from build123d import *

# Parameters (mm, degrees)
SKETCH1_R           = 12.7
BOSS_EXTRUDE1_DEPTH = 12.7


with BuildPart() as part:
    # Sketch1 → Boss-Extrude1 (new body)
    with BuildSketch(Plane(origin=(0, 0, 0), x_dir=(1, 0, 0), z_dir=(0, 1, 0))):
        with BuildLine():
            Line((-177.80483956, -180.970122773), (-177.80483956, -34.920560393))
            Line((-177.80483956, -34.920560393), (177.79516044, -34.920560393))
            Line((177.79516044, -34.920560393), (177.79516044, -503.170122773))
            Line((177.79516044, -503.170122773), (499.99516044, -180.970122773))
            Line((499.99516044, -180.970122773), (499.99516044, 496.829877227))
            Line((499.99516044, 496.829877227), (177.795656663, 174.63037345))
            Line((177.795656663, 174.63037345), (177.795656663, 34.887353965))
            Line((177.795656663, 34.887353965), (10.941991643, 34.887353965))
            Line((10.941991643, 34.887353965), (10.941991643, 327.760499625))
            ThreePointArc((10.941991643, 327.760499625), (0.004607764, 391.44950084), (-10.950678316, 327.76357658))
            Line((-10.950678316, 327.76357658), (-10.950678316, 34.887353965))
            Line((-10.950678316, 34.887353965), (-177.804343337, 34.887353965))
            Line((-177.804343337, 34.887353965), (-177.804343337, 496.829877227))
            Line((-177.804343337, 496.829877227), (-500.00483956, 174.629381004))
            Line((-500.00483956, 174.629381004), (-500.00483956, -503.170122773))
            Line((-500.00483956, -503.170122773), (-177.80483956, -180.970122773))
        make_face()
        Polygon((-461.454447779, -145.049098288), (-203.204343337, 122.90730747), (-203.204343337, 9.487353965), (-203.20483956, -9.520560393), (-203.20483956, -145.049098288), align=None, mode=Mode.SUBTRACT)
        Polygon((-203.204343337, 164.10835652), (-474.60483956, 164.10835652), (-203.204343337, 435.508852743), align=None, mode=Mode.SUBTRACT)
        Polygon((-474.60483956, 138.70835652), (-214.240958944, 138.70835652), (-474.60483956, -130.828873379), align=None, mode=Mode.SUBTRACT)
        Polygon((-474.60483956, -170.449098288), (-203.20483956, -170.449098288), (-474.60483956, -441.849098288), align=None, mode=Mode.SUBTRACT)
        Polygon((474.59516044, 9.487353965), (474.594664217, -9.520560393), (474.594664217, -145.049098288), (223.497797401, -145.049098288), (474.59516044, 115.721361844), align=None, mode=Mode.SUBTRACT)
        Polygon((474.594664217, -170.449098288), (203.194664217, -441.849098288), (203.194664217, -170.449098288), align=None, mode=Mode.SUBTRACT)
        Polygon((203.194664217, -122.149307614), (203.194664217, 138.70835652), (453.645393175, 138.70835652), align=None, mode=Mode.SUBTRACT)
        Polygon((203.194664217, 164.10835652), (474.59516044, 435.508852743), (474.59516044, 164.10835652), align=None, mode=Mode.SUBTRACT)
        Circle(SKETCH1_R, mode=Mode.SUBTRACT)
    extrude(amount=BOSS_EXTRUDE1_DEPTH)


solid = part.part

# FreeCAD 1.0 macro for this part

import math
import FreeCAD as App
import Part
import Sketcher
Q = App.Units.Quantity

doc = App.newDocument("Part")
body = doc.addObject("PartDesign::Body", "Body")

# Sketch on XZ plane
sketch1 = body.newObject("Sketcher::SketchObject", "Sketch")
sketch1.AttachmentSupport = (doc.getObject("XZ_Plane"), [""])
sketch1.MapMode = "FlatFace"
sketch1.addGeometry([
    Part.LineSegment(App.Vector(-178, 181, 0), App.Vector(-178, 35, 0)),  # 0
    Part.LineSegment(App.Vector(-178, 35, 0), App.Vector(178, 35, 0)),  # 1
    Part.LineSegment(App.Vector(178, 35, 0), App.Vector(178, 503, 0)),  # 2
    Part.LineSegment(App.Vector(178, 503, 0), App.Vector(500, 181, 0)),  # 3
    Part.LineSegment(App.Vector(500, 181, 0), App.Vector(500, -497, 0)),  # 4
    Part.LineSegment(App.Vector(500, -497, 0), App.Vector(178, -175, 0)),  # 5
    Part.LineSegment(App.Vector(178, -175, 0), App.Vector(178, -35, 0)),  # 6
    Part.LineSegment(App.Vector(178, -35, 0), App.Vector(11, -35, 0)),  # 7
    Part.LineSegment(App.Vector(11, -35, 0), App.Vector(11, -328, 0)),  # 8
    Part.ArcOfCircle(Part.Circle(App.Vector(0, -359, 0), App.Vector(0, 0, 1), 33), math.radians(110), math.radians(431)),  # 9
    Part.LineSegment(App.Vector(-11, -328, 0), App.Vector(-11, -35, 0)),  # 10
    Part.LineSegment(App.Vector(-11, -35, 0), App.Vector(-178, -35, 0)),  # 11
    Part.LineSegment(App.Vector(-178, -35, 0), App.Vector(-178, -497, 0)),  # 12
    Part.LineSegment(App.Vector(-178, -497, 0), App.Vector(-500, -175, 0)),  # 13
    Part.LineSegment(App.Vector(-500, -175, 0), App.Vector(-500, 503, 0)),  # 14
    Part.LineSegment(App.Vector(-500, 503, 0), App.Vector(-178, 181, 0)),  # 15
    Part.LineSegment(App.Vector(-475, 442, 0), App.Vector(-475, 170, 0)),  # 16
    Part.LineSegment(App.Vector(-475, 170, 0), App.Vector(-203, 170, 0)),  # 17
    Part.LineSegment(App.Vector(-203, 170, 0), App.Vector(-475, 442, 0)),  # 18
    Part.LineSegment(App.Vector(-203, 145, 0), App.Vector(-461, 145, 0)),  # 19
    Part.LineSegment(App.Vector(-461, 145, 0), App.Vector(-203, -123, 0)),  # 20
    Part.LineSegment(App.Vector(-203, -123, 0), App.Vector(-203, -9, 0)),  # 21
    Part.LineSegment(App.Vector(-203, -9, 0), App.Vector(-203, 10, 0)),  # 22
    Part.LineSegment(App.Vector(-203, 10, 0), App.Vector(-203, 145, 0)),  # 23
    Part.LineSegment(App.Vector(203, 170, 0), App.Vector(475, 170, 0)),  # 24
    Part.LineSegment(App.Vector(475, 170, 0), App.Vector(203, 442, 0)),  # 25
    Part.LineSegment(App.Vector(203, 442, 0), App.Vector(203, 170, 0)),  # 26
    Part.LineSegment(App.Vector(475, -116, 0), App.Vector(475, -9, 0)),  # 27
    Part.LineSegment(App.Vector(475, -9, 0), App.Vector(475, 10, 0)),  # 28
    Part.LineSegment(App.Vector(475, 10, 0), App.Vector(475, 145, 0)),  # 29
    Part.LineSegment(App.Vector(475, 145, 0), App.Vector(223, 145, 0)),  # 30
    Part.LineSegment(App.Vector(223, 145, 0), App.Vector(475, -116, 0)),  # 31
    Part.LineSegment(App.Vector(-475, 131, 0), App.Vector(-475, -139, 0)),  # 32
    Part.LineSegment(App.Vector(-475, -139, 0), App.Vector(-214, -139, 0)),  # 33
    Part.LineSegment(App.Vector(-214, -139, 0), App.Vector(-475, 131, 0)),  # 34
    Part.LineSegment(App.Vector(-203, -436, 0), App.Vector(-203, -164, 0)),  # 35
    Part.LineSegment(App.Vector(-203, -164, 0), App.Vector(-475, -164, 0)),  # 36
    Part.LineSegment(App.Vector(-475, -164, 0), App.Vector(-203, -436, 0)),  # 37
    Part.Circle(App.Vector(0, 0, 0), App.Vector(0, 0, 1), 13),  # 38
    Part.LineSegment(App.Vector(454, -139, 0), App.Vector(203, 122, 0)),  # 39
    Part.LineSegment(App.Vector(203, 122, 0), App.Vector(203, -139, 0)),  # 40
    Part.LineSegment(App.Vector(203, -139, 0), App.Vector(454, -139, 0)),  # 41
    Part.LineSegment(App.Vector(475, -164, 0), App.Vector(203, -164, 0)),  # 42
    Part.LineSegment(App.Vector(203, -164, 0), App.Vector(475, -436, 0)),  # 43
    Part.LineSegment(App.Vector(475, -436, 0), App.Vector(475, -164, 0)),  # 44
], False)
sketch1.addConstraint([
    Sketcher.Constraint("Coincident", 0, 2, 1, 1),
    Sketcher.Constraint("Coincident", 1, 2, 2, 1),
    Sketcher.Constraint("Coincident", 2, 2, 3, 1),
    Sketcher.Constraint("Coincident", 3, 2, 4, 1),
    Sketcher.Constraint("Coincident", 4, 2, 5, 1),
    Sketcher.Constraint("Coincident", 5, 2, 6, 1),
    Sketcher.Constraint("Coincident", 6, 2, 7, 1),
    Sketcher.Constraint("Coincident", 7, 2, 8, 1),
    Sketcher.Constraint("Coincident", 8, 2, 9, 2),
    Sketcher.Constraint("Coincident", 9, 1, 10, 1),
    Sketcher.Constraint("Coincident", 10, 2, 11, 1),
    Sketcher.Constraint("Coincident", 11, 2, 12, 1),
    Sketcher.Constraint("Coincident", 12, 2, 13, 1),
    Sketcher.Constraint("Coincident", 13, 2, 14, 1),
    Sketcher.Constraint("Coincident", 14, 2, 15, 1),
    Sketcher.Constraint("Coincident", 15, 2, 0, 1),
    Sketcher.Constraint("Coincident", 16, 2, 17, 1),
    Sketcher.Constraint("Coincident", 17, 2, 18, 1),
    Sketcher.Constraint("Coincident", 18, 2, 16, 1),
    Sketcher.Constraint("Coincident", 19, 2, 20, 1),
    Sketcher.Constraint("Coincident", 20, 2, 21, 1),
    Sketcher.Constraint("Coincident", 21, 2, 22, 1),
    Sketcher.Constraint("Coincident", 22, 2, 23, 1),
    Sketcher.Constraint("Coincident", 23, 2, 19, 1),
    Sketcher.Constraint("Coincident", 24, 2, 25, 1),
    Sketcher.Constraint("Coincident", 25, 2, 26, 1),
    Sketcher.Constraint("Coincident", 26, 2, 24, 1),
    Sketcher.Constraint("Coincident", 27, 2, 28, 1),
    Sketcher.Constraint("Coincident", 28, 2, 29, 1),
    Sketcher.Constraint("Coincident", 29, 2, 30, 1),
    Sketcher.Constraint("Coincident", 30, 2, 31, 1),
    Sketcher.Constraint("Coincident", 31, 2, 27, 1),
    Sketcher.Constraint("Coincident", 32, 2, 33, 1),
    Sketcher.Constraint("Coincident", 33, 2, 34, 1),
    Sketcher.Constraint("Coincident", 34, 2, 32, 1),
    Sketcher.Constraint("Coincident", 35, 2, 36, 1),
    Sketcher.Constraint("Coincident", 36, 2, 37, 1),
    Sketcher.Constraint("Coincident", 37, 2, 35, 1),
    Sketcher.Constraint("Coincident", 39, 2, 40, 1),
    Sketcher.Constraint("Coincident", 40, 2, 41, 1),
    Sketcher.Constraint("Coincident", 41, 2, 39, 1),
    Sketcher.Constraint("Coincident", 42, 2, 43, 1),
    Sketcher.Constraint("Coincident", 43, 2, 44, 1),
    Sketcher.Constraint("Coincident", 44, 2, 42, 1),
    Sketcher.Constraint("Vertical", 0),
    Sketcher.Constraint("Horizontal", 1),
    Sketcher.Constraint("Vertical", 2),
    Sketcher.Constraint("Vertical", 4),
    Sketcher.Constraint("Vertical", 6),
    Sketcher.Constraint("Horizontal", 7),
    Sketcher.Constraint("Vertical", 8),
    Sketcher.Constraint("Vertical", 10),
    Sketcher.Constraint("Horizontal", 11),
    Sketcher.Constraint("Vertical", 12),
    Sketcher.Constraint("Vertical", 14),
    Sketcher.Constraint("Vertical", 16),
    Sketcher.Constraint("Horizontal", 17),
    Sketcher.Constraint("Horizontal", 19),
    Sketcher.Constraint("Vertical", 21),
    Sketcher.Constraint("Vertical", 23),
    Sketcher.Constraint("Horizontal", 24),
    Sketcher.Constraint("Vertical", 26),
    Sketcher.Constraint("Vertical", 27),
    Sketcher.Constraint("Vertical", 29),
    Sketcher.Constraint("Horizontal", 30),
    Sketcher.Constraint("Vertical", 32),
    Sketcher.Constraint("Horizontal", 33),
    Sketcher.Constraint("Vertical", 35),
    Sketcher.Constraint("Horizontal", 36),
    Sketcher.Constraint("Vertical", 40),
    Sketcher.Constraint("Horizontal", 41),
    Sketcher.Constraint("Horizontal", 42),
    Sketcher.Constraint("Vertical", 44),
    Sketcher.Constraint("Coincident", 38, 3, -1, 1),
    Sketcher.Constraint("PointOnObject", 9, 3, -2),
    Sketcher.Constraint("Parallel", 3, 5),
    Sketcher.Constraint("Parallel", 5, 13),
    Sketcher.Constraint("Parallel", 13, 15),
    Sketcher.Constraint("Parallel", 15, 18),
    Sketcher.Constraint("Parallel", 18, 25),
    Sketcher.Constraint("Parallel", 22, 28),
    Sketcher.Constraint("Parallel", 25, 37),
    Sketcher.Constraint("Parallel", 37, 43),
    Sketcher.Constraint("Horizontal", 7, 2, 10, 2),
    Sketcher.Constraint("Horizontal", 4, 2, 12, 2),
    Sketcher.Constraint("Horizontal", 2, 2, 14, 2),
    Sketcher.Constraint("Horizontal", 3, 2, 15, 2),
    Sketcher.Constraint("Horizontal", 17, 2, 24, 2),
    Sketcher.Constraint("Horizontal", 18, 2, 25, 2),
    Sketcher.Constraint("Horizontal", 21, 2, 27, 2),
    Sketcher.Constraint("Horizontal", 22, 2, 28, 2),
    Sketcher.Constraint("Horizontal", 23, 2, 29, 2),
    Sketcher.Constraint("Horizontal", 33, 2, 40, 2),
    Sketcher.Constraint("Horizontal", 36, 2, 42, 2),
    Sketcher.Constraint("Horizontal", 37, 2, 43, 2),
    Sketcher.Constraint("Vertical", 17, 2, 22, 2),
    Sketcher.Constraint("Vertical", 24, 2, 28, 2),
    Sketcher.Constraint("Vertical", 18, 2, 32, 2),
    Sketcher.Constraint("Vertical", 21, 2, 35, 2),
    Sketcher.Constraint("Vertical", 34, 2, 36, 2),
    Sketcher.Constraint("Vertical", 26, 2, 39, 2),
    Sketcher.Constraint("Vertical", 40, 2, 42, 2),
    Sketcher.Constraint("Equal", 7, 11),
    Sketcher.Constraint("Equal", 24, 16),
    Sketcher.Constraint("Diameter", 38, Q("1 in")),
    Sketcher.Constraint("DistanceX", 1, 1, 1, 2, Q("14 in")),
    Sketcher.Constraint("DistanceX", 12, 2, 5, 2, Q("14 in")),
    Sketcher.Constraint("DistanceX", 14, 2, 16, 2, Q("1 in")),
    Sketcher.Constraint("DistanceX", 17, 2, 15, 2, Q("1 in")),
    Sketcher.Constraint("DistanceY", 19, 2, 16, 2, Q("1 in")),
    Sketcher.Constraint("DistanceX", 20, 2, 11, 2, Q("1 in")),
    Sketcher.Constraint("DistanceY", 11, 2, 21, 2, Q("1 in")),
    Sketcher.Constraint("DistanceY", 22, 2, 0, 2, Q("1 in")),
    Sketcher.Constraint("DistanceX", 27, 2, 3, 2, Q("1 in")),
    Sketcher.Constraint("DistanceY", 35, 2, 33, 2, Q("1 in")),
    Sketcher.Constraint("DistanceX", 17, 1, 17, 2, Q("271.4 mm")),
    Sketcher.Constraint("DistanceY", 4, 2, 4, 1, Q("677.8 mm")),
    Sketcher.Constraint("Radius", 9, Q("32.784437 mm")),
    Sketcher.Constraint("DistanceX", 19, 2, 19, 1, Q("258.249608 mm")),
    Sketcher.Constraint("DistanceX", 33, 1, 33, 2, Q("260.363881 mm")),
    Sketcher.Constraint("DistanceX", 41, 1, 41, 2, Q("250.450729 mm")),
    Sketcher.Constraint("DistanceY", 6, 1, 6, 2, Q("139.743019 mm")),
    Sketcher.Constraint("DistanceY", 32, 2, 32, 1, Q("269.53723 mm")),
    Sketcher.Constraint("DistanceY", 8, 2, -1, 1, Q("327.7605 mm")),
    Sketcher.Constraint("DistanceY", -1, 1, 16, 2, Q("170.449098 mm")),
    Sketcher.Constraint("DistanceY", 12, 2, 9, 1, Q("169.066301 mm")),
    Sketcher.Constraint("Distance", 5, Q("455.658908 mm")),
    Sketcher.Constraint("DistanceX", 7, 2, 7, 1, Q("166.853665 mm")),
    Sketcher.Constraint("DistanceX", 30, 2, 30, 1, Q("251.096867 mm")),
    Sketcher.Constraint("DistanceY", 0, 2, 0, 1, Q("146.049562 mm")),
    Sketcher.Constraint("DistanceY", 8, 2, 8, 1, Q("292.873146 mm")),
    Sketcher.Constraint("DistanceY", 21, 1, 21, 2, Q("113.419954 mm")),
    Sketcher.Constraint("DistanceY", 27, 1, 27, 2, Q("106.234008 mm")),
    Sketcher.Constraint("DistanceY", 40, 2, 40, 1, Q("260.857664 mm")),
    Sketcher.Constraint("DistanceY", 32, 2, 20, 2, Q("15.801049 mm")),
])
pad1 = body.newObject("PartDesign::Pad", "Pad")
pad1.Profile = sketch1
pad1.Length = Q("0.5 in")
pad1.Reversed = True

doc.recompute()
